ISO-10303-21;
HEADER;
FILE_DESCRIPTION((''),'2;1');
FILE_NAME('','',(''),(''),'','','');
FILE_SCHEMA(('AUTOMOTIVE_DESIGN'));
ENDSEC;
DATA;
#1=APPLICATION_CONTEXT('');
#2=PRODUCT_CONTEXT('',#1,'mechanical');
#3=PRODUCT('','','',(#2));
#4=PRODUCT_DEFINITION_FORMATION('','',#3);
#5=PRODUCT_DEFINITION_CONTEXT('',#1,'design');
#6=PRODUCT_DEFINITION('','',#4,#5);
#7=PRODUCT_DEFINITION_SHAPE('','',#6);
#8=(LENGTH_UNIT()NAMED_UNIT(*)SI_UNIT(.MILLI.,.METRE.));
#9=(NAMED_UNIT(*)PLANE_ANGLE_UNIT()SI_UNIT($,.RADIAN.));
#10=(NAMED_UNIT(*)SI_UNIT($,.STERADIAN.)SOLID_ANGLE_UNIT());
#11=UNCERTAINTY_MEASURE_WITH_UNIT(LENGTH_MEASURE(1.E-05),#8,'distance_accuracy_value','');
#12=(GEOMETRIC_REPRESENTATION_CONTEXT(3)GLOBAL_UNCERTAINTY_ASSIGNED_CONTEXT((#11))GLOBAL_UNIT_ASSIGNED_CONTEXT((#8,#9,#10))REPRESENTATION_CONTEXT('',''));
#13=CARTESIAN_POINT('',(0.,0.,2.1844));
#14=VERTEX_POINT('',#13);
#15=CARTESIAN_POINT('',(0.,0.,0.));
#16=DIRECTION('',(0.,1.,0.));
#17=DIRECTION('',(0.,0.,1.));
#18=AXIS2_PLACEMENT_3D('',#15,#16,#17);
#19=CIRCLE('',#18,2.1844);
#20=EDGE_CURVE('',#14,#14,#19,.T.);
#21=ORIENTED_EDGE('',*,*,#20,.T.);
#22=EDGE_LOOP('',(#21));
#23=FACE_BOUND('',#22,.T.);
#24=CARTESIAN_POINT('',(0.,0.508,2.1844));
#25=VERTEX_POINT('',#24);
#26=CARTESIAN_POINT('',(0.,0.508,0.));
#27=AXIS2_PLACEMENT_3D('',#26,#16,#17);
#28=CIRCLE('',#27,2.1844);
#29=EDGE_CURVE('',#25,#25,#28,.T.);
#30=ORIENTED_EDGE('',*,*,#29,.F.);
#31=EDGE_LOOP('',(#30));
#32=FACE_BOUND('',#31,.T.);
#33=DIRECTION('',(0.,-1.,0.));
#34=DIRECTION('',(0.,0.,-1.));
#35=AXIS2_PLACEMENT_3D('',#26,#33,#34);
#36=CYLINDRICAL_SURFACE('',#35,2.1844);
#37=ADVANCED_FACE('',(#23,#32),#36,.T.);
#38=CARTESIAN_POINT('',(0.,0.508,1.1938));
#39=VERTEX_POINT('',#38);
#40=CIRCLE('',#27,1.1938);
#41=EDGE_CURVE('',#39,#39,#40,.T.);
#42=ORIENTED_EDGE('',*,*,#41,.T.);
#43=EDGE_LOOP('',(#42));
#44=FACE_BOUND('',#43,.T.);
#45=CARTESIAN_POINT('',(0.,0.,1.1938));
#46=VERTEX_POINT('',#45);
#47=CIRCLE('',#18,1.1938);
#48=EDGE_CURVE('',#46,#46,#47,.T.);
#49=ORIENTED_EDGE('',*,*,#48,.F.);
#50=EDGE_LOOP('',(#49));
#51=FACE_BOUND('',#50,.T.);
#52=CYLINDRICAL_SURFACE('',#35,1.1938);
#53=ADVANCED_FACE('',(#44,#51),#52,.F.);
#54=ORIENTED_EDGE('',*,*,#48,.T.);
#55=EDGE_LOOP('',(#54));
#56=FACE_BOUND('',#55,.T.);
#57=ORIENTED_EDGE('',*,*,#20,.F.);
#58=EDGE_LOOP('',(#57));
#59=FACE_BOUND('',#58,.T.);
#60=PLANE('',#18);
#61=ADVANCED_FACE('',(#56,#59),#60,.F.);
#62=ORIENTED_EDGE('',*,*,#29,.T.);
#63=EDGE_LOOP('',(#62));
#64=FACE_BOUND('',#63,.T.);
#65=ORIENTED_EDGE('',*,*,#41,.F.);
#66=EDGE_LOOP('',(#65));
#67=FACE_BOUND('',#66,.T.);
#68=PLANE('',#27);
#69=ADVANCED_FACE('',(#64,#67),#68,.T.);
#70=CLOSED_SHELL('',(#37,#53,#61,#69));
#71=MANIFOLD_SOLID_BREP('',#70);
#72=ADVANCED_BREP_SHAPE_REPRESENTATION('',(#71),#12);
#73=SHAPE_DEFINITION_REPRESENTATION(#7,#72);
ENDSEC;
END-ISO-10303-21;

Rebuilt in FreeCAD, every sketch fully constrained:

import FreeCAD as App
import Part
import Sketcher
from FreeCAD import Vector
Q = App.Units.Quantity

doc = App.newDocument("Part")
body = doc.addObject("PartDesign::Body", "Body")

# Sketch on XZ plane
sketch1 = body.newObject("Sketcher::SketchObject", "Sketch")
sketch1.AttachmentSupport = (doc.getObject("XZ_Plane"), [""])
sketch1.MapMode = "FlatFace"
sketch1.addGeometry([
    Part.Circle(Vector(0, 0, 0), Vector(0, 0, 1), 2.1844),
    Part.Circle(Vector(0, 0, 0), Vector(0, 0, 1), 1.1938),
], False)
sketch1.addConstraint([
    Sketcher.Constraint("Coincident", 0, 3, -1, 1),
    Sketcher.Constraint("Coincident", 1, 3, -1, 1),
    Sketcher.Constraint("Diameter", 0, Q("0.172 in")),
    Sketcher.Constraint("Diameter", 1, Q("0.094 in")),
])
pad1 = body.newObject("PartDesign::Pad", "Pad")
pad1.Profile = sketch1
pad1.Length = Q("0.02 in")
pad1.Reversed = True

doc.recompute()
